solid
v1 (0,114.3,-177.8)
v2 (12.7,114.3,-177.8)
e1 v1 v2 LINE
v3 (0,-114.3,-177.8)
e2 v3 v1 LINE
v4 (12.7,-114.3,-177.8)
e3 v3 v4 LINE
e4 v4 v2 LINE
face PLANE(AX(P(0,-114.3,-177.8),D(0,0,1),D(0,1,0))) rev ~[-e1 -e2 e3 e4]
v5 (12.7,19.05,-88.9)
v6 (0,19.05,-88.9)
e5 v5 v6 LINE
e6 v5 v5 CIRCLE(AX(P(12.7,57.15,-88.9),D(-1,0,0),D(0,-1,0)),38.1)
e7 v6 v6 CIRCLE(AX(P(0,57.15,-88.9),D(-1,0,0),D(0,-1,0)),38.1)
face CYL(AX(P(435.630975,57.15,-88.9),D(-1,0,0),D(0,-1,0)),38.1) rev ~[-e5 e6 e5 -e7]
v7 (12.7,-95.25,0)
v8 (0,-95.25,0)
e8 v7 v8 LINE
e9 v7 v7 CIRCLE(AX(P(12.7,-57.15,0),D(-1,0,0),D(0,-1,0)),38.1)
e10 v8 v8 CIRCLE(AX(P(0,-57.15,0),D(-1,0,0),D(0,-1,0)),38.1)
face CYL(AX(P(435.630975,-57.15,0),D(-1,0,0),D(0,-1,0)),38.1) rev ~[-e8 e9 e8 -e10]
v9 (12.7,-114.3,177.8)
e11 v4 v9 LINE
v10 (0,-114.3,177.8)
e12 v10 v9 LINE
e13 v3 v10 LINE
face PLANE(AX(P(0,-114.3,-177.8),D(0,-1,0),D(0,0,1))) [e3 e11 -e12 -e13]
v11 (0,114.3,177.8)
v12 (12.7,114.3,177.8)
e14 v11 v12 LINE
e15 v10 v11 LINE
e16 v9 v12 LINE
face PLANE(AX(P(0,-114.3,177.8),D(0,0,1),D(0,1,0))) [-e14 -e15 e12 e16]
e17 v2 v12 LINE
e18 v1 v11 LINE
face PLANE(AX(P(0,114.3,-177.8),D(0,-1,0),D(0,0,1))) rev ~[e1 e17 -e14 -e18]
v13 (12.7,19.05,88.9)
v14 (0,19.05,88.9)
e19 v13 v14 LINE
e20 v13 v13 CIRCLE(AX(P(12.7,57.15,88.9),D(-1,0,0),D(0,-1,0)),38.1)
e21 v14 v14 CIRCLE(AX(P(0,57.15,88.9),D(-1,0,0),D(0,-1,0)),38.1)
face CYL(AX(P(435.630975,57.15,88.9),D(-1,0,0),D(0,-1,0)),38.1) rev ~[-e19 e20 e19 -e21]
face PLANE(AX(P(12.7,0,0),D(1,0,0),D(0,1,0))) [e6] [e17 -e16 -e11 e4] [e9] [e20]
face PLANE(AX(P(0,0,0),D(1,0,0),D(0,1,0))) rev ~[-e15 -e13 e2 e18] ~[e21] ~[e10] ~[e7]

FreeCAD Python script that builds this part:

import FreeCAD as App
import Part
import Sketcher
Q = App.Units.Quantity


def add_polygon(sketch, points):
    """Adds a closed chain of lines whose ends are joined by coincident constraints."""
    first, n = sketch.GeometryCount, len(points)
    for a, b in zip(points, points[1:] + points[:1]):
        sketch.addGeometry(Part.LineSegment(App.Vector(*a, 0), App.Vector(*b, 0)), False)
    for i in range(n):
        sketch.addConstraint(Sketcher.Constraint("Coincident", first + i, 2, first + (i + 1) % n, 1))

doc = App.newDocument("Part")
body = doc.addObject("PartDesign::Body", "Body")

sketch1 = doc.addObject("Sketcher::SketchObject", "Sketch")
body.addObject(sketch1)
sketch1.AttachmentSupport = (doc.YZ_Plane, [""])
sketch1.MapMode = "FlatFace"
add_polygon(sketch1, [(-114.3, 177.8), (-114.3, -177.8), (114.3, -177.8), (114.3, 177.8)])
sketch1.addConstraint([
    Sketcher.Constraint("Vertical", 0),
    Sketcher.Constraint("Horizontal", 1),
    Sketcher.Constraint("Vertical", 2),
    Sketcher.Constraint("Horizontal", 3),
    Sketcher.Constraint("Symmetric", 0, 2, 2, 2, -1, 1),
    Sketcher.Constraint("DistanceX", 1, 1, 1, 2, Q("9 in")),
    Sketcher.Constraint("DistanceY", 0, 2, 0, 1, Q("14 in")),
])
pad1 = doc.addObject("PartDesign::Pad", "Pad")
body.addObject(pad1)
pad1.Profile = sketch1
pad1.Length = Q("0.5 in")

sketch2 = doc.addObject("Sketcher::SketchObject", "Sketch001")
body.addObject(sketch2)
sketch2.AttachmentSupport = (doc.YZ_Plane, [""])
sketch2.MapMode = "FlatFace"
sketch2.AttachmentOffset = App.Placement(App.Vector(0, 0, 0.5 * 25.4), App.Rotation())
sketch2.addGeometry([
    Part.Circle(App.Vector(57.15, -88.9, 0), App.Vector(0, 0, 1), 38.1),
    Part.Circle(App.Vector(-57.15, 0, 0), App.Vector(0, 0, 1), 38.1),
    Part.Circle(App.Vector(57.15, 88.9, 0), App.Vector(0, 0, 1), 38.1),
], False)
sketch2.addConstraint([
    Sketcher.Constraint("Equal", 0, 1),
    Sketcher.Constraint("Equal", 1, 2),
    Sketcher.Constraint("Symmetric", 0, 3, 2, 3, -1),
    Sketcher.Constraint("PointOnObject", 1, 3, -1),
    Sketcher.Constraint("Diameter", 0, Q("3 in")),
    Sketcher.Constraint("DistanceY", 0, 3, 2, 3, Q("7 in")),
    Sketcher.Constraint("DistanceX", 1, 3, 0, 3, Q("4.5 in")),
    Sketcher.Constraint("DistanceX", -1, 1, 0, 3, Q("2.25 in")),
])
doc.recompute()
hole = doc.addObject("PartDesign::Hole", "Hole")
body.addObject(hole)
hole.Profile = sketch2
hole.ThreadType = "None"
hole.Diameter = Q("3 in")
hole.DepthType = "ThroughAll"

doc.recompute()
